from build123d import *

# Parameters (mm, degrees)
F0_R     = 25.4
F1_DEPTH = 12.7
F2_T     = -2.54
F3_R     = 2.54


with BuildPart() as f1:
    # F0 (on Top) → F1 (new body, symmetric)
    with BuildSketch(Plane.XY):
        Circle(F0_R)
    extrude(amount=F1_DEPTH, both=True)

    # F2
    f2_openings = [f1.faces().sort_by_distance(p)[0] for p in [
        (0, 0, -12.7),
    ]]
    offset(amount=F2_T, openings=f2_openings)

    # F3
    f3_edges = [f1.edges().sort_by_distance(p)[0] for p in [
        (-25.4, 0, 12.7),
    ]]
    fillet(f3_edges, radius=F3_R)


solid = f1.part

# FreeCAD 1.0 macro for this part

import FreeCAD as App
import Part
import Sketcher
Q = App.Units.Quantity


def edges_at(feature, points):
    """Names of the edges that pass closest to the given points."""
    edges = feature.Shape.Edges
    near = lambda p: min(range(len(edges)), key=lambda i: edges[i].distToShape(Part.Vertex(*p))[0])
    return sorted({f"Edge{near(p) + 1}" for p in points})


def faces_at(feature, points):
    """Names of the faces that lie closest to the given points."""
    faces = feature.Shape.Faces
    near = lambda p: min(range(len(faces)), key=lambda i: faces[i].distToShape(Part.Vertex(*p))[0])
    return sorted({f"Face{near(p) + 1}" for p in points})

doc = App.newDocument("Part")
body = doc.addObject("PartDesign::Body", "Body")

# Sketch on XY plane
sketch1 = body.newObject("Sketcher::SketchObject", "Sketch")
sketch1.AttachmentSupport = (doc.getObject("XY_Plane"), [""])
sketch1.MapMode = "FlatFace"
sketch1.addGeometry(Part.Circle(App.Vector(0, 0, 0), App.Vector(0, 0, 1), 25), False)
sketch1.addConstraint([
    Sketcher.Constraint("Coincident", 0, 3, -1, 1),
    Sketcher.Constraint("Diameter", 0, Q("2 in")),
])
pad1 = body.newObject("PartDesign::Pad", "Pad")
pad1.Profile = sketch1
pad1.Length = Q("1 in")
pad1.Midplane = True
doc.recompute()

thickness = body.newObject("PartDesign::Thickness", "Thickness")
thickness.Base = (pad1, faces_at(pad1, [(0, 0, -12.7)]))
thickness.Value = Q("0.1 in")
thickness.Reversed = True
thickness.Join = "Arc"
doc.recompute()

fillet = body.newObject("PartDesign::Fillet", "Fillet")
fillet.Base = (thickness, edges_at(thickness, [(-25.4, 0, 12.7)]))
fillet.Radius = Q("0.1 in")

doc.recompute()
